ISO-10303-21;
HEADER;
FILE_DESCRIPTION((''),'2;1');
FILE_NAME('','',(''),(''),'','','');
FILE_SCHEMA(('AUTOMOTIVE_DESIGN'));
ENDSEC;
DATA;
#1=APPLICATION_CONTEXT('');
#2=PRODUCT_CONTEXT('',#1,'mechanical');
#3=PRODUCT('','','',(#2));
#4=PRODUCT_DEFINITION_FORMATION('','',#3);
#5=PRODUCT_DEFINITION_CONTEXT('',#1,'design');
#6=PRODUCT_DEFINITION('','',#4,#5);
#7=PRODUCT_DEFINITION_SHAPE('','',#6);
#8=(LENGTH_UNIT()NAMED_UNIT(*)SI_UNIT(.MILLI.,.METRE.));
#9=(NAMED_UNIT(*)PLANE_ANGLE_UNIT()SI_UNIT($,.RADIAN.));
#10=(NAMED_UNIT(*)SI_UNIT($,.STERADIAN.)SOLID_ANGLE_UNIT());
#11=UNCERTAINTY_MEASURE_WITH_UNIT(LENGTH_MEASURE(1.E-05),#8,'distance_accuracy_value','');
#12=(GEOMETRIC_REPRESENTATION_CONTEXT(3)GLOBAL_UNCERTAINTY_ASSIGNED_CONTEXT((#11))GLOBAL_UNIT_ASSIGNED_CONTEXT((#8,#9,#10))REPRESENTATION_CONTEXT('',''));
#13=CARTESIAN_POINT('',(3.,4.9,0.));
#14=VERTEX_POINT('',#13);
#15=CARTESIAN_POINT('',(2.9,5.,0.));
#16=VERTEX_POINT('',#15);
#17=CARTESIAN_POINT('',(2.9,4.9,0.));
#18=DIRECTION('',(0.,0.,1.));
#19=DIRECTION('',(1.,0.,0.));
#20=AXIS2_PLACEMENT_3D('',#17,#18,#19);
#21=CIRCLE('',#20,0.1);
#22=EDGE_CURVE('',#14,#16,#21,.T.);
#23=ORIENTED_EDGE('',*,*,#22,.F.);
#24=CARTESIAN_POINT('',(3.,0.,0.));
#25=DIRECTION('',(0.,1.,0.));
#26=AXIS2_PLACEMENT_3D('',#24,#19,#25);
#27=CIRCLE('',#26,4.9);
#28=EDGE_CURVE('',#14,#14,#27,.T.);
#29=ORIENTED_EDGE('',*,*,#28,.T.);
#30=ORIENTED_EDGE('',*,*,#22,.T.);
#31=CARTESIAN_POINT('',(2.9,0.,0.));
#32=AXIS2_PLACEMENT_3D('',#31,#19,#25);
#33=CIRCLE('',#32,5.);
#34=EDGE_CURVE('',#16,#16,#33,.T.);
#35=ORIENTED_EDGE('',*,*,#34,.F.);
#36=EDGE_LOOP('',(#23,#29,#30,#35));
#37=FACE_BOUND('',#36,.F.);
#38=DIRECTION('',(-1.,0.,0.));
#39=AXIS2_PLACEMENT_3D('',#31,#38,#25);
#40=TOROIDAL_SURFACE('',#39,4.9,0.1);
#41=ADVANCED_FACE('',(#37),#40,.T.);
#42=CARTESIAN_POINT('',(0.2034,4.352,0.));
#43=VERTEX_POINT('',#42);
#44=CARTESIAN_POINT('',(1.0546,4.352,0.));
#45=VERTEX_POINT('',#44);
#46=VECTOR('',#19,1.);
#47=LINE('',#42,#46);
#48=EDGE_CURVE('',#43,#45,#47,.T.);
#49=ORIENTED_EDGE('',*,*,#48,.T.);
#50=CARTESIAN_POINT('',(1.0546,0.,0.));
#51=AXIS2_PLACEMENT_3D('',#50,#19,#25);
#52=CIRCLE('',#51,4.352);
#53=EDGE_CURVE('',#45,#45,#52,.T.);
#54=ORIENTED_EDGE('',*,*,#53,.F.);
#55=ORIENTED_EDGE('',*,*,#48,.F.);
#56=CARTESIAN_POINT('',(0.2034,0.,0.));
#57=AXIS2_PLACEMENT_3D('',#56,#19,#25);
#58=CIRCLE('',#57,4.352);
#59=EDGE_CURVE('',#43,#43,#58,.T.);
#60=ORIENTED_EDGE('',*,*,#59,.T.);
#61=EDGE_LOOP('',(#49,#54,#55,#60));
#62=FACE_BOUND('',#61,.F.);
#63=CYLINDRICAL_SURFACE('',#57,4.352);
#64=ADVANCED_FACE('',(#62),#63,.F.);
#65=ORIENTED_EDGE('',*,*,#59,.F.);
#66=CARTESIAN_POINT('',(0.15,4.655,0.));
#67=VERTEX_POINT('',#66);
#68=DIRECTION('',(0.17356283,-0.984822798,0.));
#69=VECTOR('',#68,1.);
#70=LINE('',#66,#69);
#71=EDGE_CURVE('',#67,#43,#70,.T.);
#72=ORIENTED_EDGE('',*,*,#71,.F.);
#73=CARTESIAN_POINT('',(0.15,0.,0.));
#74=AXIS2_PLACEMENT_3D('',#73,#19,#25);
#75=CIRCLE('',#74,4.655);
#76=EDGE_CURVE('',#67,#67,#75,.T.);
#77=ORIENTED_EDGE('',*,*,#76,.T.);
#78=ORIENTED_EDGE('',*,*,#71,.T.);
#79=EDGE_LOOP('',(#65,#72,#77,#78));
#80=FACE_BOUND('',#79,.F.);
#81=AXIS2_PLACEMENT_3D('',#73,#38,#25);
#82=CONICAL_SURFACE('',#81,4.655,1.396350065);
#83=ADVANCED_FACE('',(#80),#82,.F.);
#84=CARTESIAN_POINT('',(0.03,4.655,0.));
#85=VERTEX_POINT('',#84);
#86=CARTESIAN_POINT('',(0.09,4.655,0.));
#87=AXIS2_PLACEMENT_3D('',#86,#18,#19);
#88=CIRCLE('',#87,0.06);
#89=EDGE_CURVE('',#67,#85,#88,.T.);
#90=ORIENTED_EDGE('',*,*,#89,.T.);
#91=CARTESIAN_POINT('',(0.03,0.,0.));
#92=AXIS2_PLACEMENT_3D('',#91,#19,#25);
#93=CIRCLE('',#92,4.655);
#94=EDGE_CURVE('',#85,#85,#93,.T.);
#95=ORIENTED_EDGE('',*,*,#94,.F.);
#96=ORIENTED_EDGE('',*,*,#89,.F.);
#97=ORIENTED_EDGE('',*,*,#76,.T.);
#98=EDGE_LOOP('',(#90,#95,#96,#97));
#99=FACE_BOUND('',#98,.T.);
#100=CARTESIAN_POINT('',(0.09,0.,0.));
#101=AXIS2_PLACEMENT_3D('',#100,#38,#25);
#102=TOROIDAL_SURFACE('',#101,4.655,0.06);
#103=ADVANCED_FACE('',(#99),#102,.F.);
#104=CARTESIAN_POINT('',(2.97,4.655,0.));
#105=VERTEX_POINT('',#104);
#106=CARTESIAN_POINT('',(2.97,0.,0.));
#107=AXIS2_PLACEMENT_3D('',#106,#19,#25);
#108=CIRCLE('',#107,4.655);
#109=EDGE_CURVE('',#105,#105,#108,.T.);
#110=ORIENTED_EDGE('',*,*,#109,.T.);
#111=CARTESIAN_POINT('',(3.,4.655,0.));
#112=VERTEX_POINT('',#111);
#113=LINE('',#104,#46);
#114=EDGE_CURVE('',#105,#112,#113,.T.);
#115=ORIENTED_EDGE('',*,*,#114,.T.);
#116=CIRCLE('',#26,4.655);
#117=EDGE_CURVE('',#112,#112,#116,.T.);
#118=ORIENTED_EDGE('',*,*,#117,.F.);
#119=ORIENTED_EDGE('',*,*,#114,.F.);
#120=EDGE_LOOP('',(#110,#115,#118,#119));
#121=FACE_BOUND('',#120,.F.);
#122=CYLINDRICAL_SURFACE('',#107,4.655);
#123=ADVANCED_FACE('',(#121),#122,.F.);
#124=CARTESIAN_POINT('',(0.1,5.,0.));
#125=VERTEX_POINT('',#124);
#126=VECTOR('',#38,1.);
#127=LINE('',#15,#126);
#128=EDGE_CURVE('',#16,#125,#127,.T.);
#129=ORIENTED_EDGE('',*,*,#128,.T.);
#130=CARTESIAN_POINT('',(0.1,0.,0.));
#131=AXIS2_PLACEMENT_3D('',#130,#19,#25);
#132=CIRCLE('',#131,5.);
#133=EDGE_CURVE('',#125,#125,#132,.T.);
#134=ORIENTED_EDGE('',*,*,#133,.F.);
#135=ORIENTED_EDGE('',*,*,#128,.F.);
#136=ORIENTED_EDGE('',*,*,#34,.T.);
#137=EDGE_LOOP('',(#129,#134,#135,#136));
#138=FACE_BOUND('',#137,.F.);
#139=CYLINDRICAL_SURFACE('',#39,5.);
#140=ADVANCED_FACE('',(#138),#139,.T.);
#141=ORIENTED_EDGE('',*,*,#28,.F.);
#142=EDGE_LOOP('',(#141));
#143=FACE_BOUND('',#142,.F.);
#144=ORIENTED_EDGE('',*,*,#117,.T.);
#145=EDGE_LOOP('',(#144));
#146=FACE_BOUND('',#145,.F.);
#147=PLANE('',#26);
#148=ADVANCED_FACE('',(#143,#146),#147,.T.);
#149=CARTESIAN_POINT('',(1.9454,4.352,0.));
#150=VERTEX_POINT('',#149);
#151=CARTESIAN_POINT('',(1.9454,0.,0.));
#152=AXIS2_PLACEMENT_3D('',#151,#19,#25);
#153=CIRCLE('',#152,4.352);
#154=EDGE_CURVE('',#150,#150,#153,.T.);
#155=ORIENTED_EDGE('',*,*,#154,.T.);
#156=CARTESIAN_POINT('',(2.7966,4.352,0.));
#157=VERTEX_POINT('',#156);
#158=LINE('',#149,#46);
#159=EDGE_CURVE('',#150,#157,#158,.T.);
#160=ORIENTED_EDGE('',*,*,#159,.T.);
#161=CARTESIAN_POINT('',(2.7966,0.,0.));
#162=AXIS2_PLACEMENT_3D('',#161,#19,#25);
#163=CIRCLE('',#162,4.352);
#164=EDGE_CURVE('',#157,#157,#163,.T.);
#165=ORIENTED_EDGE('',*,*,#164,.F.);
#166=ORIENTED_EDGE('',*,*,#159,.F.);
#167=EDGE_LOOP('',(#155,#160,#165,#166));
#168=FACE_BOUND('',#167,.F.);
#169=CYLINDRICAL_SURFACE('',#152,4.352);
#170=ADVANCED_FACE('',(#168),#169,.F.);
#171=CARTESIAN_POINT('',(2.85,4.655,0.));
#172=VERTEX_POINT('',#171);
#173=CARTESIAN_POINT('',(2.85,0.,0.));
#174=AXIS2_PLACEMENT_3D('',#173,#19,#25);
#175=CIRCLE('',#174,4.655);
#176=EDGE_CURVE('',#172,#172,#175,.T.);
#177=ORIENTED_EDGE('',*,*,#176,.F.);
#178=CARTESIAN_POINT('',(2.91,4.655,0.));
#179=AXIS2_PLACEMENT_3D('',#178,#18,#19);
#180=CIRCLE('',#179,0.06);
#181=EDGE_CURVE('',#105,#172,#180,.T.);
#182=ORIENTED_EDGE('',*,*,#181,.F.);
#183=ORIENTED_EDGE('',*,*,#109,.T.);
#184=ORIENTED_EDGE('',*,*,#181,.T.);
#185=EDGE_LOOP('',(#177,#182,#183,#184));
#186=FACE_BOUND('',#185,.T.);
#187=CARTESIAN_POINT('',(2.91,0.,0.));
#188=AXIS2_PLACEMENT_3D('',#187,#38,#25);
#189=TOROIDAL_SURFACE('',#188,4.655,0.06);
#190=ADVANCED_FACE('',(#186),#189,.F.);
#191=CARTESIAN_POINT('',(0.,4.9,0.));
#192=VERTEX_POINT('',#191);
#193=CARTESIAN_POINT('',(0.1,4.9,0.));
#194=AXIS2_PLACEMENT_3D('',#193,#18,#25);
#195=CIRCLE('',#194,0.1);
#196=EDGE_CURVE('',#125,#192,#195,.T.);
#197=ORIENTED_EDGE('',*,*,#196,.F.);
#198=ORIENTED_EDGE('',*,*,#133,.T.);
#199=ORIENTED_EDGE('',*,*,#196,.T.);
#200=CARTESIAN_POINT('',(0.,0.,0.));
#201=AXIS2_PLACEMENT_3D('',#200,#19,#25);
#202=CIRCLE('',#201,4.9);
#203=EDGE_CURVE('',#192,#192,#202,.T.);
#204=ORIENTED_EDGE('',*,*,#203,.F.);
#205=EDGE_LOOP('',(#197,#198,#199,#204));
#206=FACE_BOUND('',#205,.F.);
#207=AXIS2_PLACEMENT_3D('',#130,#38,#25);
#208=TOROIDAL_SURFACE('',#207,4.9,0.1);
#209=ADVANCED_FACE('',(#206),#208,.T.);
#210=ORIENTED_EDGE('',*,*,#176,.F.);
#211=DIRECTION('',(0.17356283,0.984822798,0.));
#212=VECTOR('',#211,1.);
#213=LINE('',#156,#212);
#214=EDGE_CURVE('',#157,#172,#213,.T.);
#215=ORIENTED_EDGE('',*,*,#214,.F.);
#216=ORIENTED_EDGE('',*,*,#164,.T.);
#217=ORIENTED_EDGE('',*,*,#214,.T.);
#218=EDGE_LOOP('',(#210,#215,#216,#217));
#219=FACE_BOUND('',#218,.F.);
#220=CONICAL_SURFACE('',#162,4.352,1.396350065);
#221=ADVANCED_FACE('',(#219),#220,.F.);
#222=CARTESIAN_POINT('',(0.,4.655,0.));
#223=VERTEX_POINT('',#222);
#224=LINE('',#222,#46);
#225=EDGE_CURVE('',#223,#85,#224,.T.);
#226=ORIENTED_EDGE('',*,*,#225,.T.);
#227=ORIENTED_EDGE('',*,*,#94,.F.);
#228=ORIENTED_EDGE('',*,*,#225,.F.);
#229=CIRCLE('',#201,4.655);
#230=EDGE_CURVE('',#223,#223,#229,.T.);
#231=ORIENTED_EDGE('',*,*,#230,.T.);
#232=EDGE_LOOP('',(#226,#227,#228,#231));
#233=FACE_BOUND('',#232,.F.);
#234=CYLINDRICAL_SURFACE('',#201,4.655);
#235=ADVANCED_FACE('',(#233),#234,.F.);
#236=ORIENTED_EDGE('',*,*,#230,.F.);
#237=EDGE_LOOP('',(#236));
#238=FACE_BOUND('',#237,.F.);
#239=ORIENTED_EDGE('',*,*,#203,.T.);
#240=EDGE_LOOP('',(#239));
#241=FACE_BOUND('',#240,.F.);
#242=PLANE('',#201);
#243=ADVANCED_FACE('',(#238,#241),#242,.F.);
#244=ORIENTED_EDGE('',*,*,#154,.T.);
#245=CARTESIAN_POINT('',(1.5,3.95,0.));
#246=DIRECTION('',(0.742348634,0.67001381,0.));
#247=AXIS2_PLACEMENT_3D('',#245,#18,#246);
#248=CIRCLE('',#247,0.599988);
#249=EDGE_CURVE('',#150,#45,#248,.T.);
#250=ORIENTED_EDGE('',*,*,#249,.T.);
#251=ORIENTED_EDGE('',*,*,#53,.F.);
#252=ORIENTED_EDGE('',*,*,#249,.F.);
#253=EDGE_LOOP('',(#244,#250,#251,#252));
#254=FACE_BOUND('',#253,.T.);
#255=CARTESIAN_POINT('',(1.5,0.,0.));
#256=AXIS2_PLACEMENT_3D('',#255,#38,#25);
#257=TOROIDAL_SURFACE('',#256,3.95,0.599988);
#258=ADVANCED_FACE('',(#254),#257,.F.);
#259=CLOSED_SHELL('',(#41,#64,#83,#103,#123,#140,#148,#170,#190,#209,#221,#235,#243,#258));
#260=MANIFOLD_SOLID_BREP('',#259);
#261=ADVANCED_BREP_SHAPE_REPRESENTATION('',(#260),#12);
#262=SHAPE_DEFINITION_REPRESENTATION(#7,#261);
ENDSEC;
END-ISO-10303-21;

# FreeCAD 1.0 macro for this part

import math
import FreeCAD as App
import Part
import Sketcher

V = App.Vector
Q = App.Units.Quantity

doc = App.newDocument("Part")
body = doc.addObject("PartDesign::Body", "Body")

# Sketch on XY plane
sketch1 = body.newObject("Sketcher::SketchObject", "Sketch")
sketch1.AttachmentSupport = (doc.getObject("XY_Plane"), [""])
sketch1.MapMode = "FlatFace"
sketch1.addGeometry([
    Part.ArcOfCircle(Part.Circle(V(0.1, 4.9, 0), V(0, 0, 1), 0.1), math.radians(90), math.radians(180)),  # 0
    Part.LineSegment(V(0, 4.9, 0), V(0, 4.655, 0)),  # 1
    Part.LineSegment(V(0, 4.655, 0), V(0.03, 4.655, 0)),  # 2
    Part.ArcOfCircle(Part.Circle(V(0.09, 4.655, 0), V(0, 0, 1), 0.06), math.radians(0), math.radians(180)),  # 3
    Part.LineSegment(V(0.15, 4.655, 0), V(0.2034, 4.352, 0)),  # 4
    Part.LineSegment(V(0.2034, 4.352, 0), V(1.0546, 4.352, 0)),  # 5
    Part.ArcOfCircle(Part.Circle(V(1.5, 3.95, 0), V(0, 0, 1), 0.599988), math.radians(42.068131), math.radians(137.931869)),  # 6
    Part.LineSegment(V(1.9454, 4.352, 0), V(2.7966, 4.352, 0)),  # 7
    Part.LineSegment(V(2.7966, 4.352, 0), V(2.85, 4.655, 0)),  # 8
    Part.ArcOfCircle(Part.Circle(V(2.91, 4.655, 0), V(0, 0, 1), 0.06), math.radians(0), math.radians(180)),  # 9
    Part.LineSegment(V(2.97, 4.655, 0), V(3, 4.655, 0)),  # 10
    Part.LineSegment(V(3, 4.655, 0), V(3, 4.9, 0)),  # 11
    Part.ArcOfCircle(Part.Circle(V(2.9, 4.9, 0), V(0, 0, 1), 0.1), math.radians(0), math.radians(90)),  # 12
    Part.LineSegment(V(2.9, 5, 0), V(0.1, 5, 0)),  # 13
], False)
sketch1.addConstraint([
    Sketcher.Constraint("Tangent", 0, 2, 1, 1),
    Sketcher.Constraint("Coincident", 1, 2, 2, 1),
    Sketcher.Constraint("Coincident", 2, 2, 3, 2),
    Sketcher.Constraint("Coincident", 3, 1, 4, 1),
    Sketcher.Constraint("Coincident", 4, 2, 5, 1),
    Sketcher.Constraint("Coincident", 5, 2, 6, 2),
    Sketcher.Constraint("Coincident", 6, 1, 7, 1),
    Sketcher.Constraint("Coincident", 7, 2, 8, 1),
    Sketcher.Constraint("Coincident", 8, 2, 9, 2),
    Sketcher.Constraint("Coincident", 9, 1, 10, 1),
    Sketcher.Constraint("Coincident", 10, 2, 11, 1),
    Sketcher.Constraint("Tangent", 11, 2, 12, 1),
    Sketcher.Constraint("Tangent", 12, 2, 13, 1),
    Sketcher.Constraint("Tangent", 13, 2, 0, 1),
    Sketcher.Constraint("Vertical", 1),
    Sketcher.Constraint("Horizontal", 2),
    Sketcher.Constraint("Horizontal", 5),
    Sketcher.Constraint("Horizontal", 7),
    Sketcher.Constraint("Horizontal", 10),
    Sketcher.Constraint("Vertical", 11),
    Sketcher.Constraint("Horizontal", 13),
    Sketcher.Constraint("Equal", 3, 9),
    Sketcher.Constraint("Equal", 0, 12),
    Sketcher.Constraint("PointOnObject", 0, 2, -2),
    Sketcher.Constraint("Horizontal", 3, 3, 9, 3),
    Sketcher.Constraint("Horizontal", 9, 3, 1, 2),
    Sketcher.Constraint("Horizontal", 2, 2, 3, 1),
    Sketcher.Constraint("Horizontal", 5, 2, 6, 1),
    Sketcher.Constraint("Horizontal", 3, 1, 8, 2),
    Sketcher.Constraint("Horizontal", 8, 2, 9, 1),
    Sketcher.Constraint("Equal", 5, 7),
    Sketcher.Constraint("Equal", 2, 10),
    Sketcher.Constraint("Equal", 4, 8),
    Sketcher.Constraint("Radius", 0, Q("0.1 mm")),
    Sketcher.Constraint("Radius", 6, Q("0.6 mm")),
    Sketcher.Constraint("Radius", 3, Q("0.06 mm")),
    Sketcher.Constraint("DistanceX", 13, 2, 13, 1, Q("2.8 mm")),
    Sketcher.Constraint("DistanceY", -1, 1, 12, 2, Q("5 mm")),
    Sketcher.Constraint("DistanceX", 2, 1, 2, 2, Q("0.03 mm")),
    Sketcher.Constraint("DistanceY", 1, 2, 1, 1, Q("0.245 mm")),
    Sketcher.Constraint("DistanceY", -1, 1, 6, 3, Q("3.95 mm")),
    Sketcher.Constraint("DistanceX", 5, 1, 5, 2, Q("0.8512 mm")),
    Sketcher.Constraint("DistanceY", -1, 1, 4, 2, Q("4.352 mm")),
])
revolution = body.newObject("PartDesign::Revolution", "Revolution")
revolution.Profile = sketch1
revolution.ReferenceAxis = (sketch1, ["H_Axis"])
revolution.Angle = 360

doc.recompute()
